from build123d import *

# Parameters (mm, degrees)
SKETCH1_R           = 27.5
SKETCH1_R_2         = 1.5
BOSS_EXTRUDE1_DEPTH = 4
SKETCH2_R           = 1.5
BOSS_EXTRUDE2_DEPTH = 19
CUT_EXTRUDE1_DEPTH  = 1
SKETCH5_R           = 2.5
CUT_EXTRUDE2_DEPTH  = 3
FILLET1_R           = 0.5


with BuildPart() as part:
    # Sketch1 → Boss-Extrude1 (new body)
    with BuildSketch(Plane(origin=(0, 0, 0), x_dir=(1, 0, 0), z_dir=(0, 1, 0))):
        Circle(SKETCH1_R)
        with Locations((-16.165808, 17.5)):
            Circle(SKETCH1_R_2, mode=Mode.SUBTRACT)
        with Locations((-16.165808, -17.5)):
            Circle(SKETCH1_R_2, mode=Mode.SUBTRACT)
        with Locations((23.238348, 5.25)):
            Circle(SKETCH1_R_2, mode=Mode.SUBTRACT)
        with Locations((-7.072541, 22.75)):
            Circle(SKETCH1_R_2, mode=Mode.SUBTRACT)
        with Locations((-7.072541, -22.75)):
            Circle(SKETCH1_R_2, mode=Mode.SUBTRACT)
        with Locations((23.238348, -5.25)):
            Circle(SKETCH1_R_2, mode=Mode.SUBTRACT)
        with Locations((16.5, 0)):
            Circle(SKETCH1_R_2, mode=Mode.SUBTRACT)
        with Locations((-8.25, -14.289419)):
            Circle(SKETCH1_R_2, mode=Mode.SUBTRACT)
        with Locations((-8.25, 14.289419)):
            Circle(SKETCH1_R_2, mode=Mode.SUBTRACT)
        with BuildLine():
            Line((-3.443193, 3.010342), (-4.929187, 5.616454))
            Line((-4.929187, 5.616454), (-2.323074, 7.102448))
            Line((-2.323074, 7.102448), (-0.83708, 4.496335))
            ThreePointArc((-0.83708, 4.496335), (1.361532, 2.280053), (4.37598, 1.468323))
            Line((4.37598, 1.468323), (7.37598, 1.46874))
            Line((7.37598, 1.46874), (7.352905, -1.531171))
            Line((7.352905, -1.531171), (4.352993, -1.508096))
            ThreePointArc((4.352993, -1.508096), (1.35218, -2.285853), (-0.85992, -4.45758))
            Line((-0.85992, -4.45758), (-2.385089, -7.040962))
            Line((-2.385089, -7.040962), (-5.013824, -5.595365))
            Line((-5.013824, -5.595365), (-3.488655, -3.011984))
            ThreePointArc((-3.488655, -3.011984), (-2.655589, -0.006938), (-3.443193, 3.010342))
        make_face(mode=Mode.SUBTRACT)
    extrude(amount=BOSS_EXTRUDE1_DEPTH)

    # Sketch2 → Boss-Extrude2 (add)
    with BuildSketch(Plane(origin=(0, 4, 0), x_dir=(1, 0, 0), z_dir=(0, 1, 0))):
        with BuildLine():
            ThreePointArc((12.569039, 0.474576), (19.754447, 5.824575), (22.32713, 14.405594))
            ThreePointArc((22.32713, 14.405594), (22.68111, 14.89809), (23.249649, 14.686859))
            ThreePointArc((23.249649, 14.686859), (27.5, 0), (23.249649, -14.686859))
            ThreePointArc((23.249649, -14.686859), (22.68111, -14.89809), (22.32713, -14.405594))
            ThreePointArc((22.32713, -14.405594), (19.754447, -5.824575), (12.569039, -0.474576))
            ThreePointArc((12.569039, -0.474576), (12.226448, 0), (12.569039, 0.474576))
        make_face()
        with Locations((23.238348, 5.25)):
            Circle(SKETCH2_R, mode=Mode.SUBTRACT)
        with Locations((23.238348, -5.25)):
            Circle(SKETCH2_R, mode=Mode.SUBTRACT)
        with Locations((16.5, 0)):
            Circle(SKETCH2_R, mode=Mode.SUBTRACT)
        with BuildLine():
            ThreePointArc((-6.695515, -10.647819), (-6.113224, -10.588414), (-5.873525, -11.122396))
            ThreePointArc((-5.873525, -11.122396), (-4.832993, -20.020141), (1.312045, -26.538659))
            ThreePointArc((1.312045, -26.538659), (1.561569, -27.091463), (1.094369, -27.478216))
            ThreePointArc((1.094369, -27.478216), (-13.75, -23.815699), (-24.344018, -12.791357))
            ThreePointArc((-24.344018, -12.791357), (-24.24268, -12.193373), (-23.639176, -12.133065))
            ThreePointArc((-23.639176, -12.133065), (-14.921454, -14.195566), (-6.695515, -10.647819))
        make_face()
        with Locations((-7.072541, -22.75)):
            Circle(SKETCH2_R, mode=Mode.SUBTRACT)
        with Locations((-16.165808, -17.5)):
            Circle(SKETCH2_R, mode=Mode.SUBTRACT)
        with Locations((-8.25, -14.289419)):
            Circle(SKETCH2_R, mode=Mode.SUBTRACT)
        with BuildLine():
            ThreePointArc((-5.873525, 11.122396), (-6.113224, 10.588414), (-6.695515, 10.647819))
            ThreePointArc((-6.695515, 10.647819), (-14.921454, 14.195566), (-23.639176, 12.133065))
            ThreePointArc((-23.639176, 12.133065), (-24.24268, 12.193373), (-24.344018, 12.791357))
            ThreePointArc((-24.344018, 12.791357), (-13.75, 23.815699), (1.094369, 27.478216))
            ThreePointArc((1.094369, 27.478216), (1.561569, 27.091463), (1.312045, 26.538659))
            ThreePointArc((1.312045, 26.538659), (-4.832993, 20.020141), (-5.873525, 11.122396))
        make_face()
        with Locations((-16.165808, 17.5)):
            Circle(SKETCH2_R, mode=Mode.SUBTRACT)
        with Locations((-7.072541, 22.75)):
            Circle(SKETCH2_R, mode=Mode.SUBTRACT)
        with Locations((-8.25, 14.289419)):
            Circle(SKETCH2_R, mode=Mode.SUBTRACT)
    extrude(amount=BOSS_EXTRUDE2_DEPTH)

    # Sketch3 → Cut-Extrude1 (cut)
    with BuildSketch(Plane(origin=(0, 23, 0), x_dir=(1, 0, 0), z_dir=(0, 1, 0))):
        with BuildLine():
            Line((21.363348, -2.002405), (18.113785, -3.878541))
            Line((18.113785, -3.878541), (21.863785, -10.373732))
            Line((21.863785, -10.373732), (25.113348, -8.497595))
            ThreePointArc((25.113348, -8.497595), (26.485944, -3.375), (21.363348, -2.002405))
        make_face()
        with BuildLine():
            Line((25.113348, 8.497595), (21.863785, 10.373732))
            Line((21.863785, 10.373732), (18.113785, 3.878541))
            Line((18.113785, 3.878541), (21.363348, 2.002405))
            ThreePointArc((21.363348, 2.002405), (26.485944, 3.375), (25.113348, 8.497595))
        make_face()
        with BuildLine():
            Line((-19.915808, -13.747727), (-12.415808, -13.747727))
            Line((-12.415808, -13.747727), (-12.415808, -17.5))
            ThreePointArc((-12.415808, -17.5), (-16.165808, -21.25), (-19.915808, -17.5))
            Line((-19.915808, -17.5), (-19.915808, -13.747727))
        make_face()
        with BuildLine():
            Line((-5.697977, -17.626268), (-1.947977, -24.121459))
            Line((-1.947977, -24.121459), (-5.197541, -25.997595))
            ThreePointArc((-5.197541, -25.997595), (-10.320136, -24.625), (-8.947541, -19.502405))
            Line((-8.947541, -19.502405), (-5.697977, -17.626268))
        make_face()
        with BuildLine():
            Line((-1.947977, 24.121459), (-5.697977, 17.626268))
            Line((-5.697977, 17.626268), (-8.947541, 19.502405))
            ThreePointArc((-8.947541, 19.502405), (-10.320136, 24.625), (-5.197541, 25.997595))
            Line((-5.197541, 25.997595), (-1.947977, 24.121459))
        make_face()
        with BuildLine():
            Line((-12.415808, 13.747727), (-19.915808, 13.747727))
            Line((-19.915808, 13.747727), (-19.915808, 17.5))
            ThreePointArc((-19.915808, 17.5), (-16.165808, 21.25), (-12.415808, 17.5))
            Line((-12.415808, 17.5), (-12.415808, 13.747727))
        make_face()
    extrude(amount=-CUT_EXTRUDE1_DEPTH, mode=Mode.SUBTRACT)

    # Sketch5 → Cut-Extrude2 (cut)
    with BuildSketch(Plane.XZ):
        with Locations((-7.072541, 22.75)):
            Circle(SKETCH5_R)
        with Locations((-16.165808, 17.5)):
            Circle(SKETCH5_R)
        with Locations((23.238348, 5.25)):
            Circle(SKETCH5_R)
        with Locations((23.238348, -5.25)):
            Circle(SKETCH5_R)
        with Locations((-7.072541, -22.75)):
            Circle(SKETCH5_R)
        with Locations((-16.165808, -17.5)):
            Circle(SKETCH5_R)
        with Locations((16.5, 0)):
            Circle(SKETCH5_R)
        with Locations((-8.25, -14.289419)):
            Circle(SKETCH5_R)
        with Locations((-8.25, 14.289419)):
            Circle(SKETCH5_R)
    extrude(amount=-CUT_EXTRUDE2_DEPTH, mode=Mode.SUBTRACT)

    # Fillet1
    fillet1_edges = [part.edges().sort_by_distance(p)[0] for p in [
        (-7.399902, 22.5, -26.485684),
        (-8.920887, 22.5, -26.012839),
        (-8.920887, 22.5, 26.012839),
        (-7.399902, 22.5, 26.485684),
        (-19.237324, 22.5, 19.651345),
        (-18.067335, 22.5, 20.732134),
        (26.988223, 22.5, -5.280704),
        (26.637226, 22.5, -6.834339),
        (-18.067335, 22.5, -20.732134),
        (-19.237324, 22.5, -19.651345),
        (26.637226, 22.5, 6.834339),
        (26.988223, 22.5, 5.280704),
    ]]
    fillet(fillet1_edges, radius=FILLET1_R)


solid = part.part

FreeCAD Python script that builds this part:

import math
import FreeCAD as App
import Part
import Sketcher

V = App.Vector
Q = App.Units.Quantity


def edges_at(feature, points):
    """Names of the edges that pass closest to the given points."""
    edges = feature.Shape.Edges
    near = lambda p: min(range(len(edges)), key=lambda i: edges[i].distToShape(Part.Vertex(*p))[0])
    return sorted({f"Edge{near(p) + 1}" for p in points})

doc = App.newDocument("Part")
params = doc.addObject("Spreadsheet::Sheet", "Params")
for row, (alias, value) in enumerate([
    ("sketch1_diameter", "55 mm"),
    ("sketch1_diameter2", "3 mm"),
    ("sketch1_radius", "6.000002 mm"),
    ("sketch1_length", "3 mm"),
    ("pad1_length", "4 mm"),
    ("sketch2_diameter", "3 mm"),
    ("sketch2_radius", "0.5 mm"),
    ("sketch2_radius2", "27.500001 mm"),
    ("sketch2_radius3", "14.25 mm"),
    ("pad2_length", "19 mm"),
    ("sketch3_radius", "3.75 mm"),
    ("pocket1_length", "1 mm"),
    ("sketch4_diameter", "5 mm"),
    ("pocket2_length", "3 mm"),
    ("fillet_radius", "0.5 mm"),
], start=1):
    params.set(f"A{row}", alias)
    params.set(f"B{row}", "=" + value)
    params.setAlias(f"B{row}", alias)

body = doc.addObject("PartDesign::Body", "Body")

# Sketch on XZ plane
sketch1 = body.newObject("Sketcher::SketchObject", "Sketch")
sketch1.AttachmentSupport = (doc.getObject("XZ_Plane"), [""])
sketch1.MapMode = "FlatFace"
sketch1.addGeometry(Part.Circle(V(0, 0, 0), V(0, 0, 1), 27.5), False)
sketch1.addGeometry(Part.Circle(V(-7.072541, 22.75, 0), V(0, 0, 1), 1.5), False)
sketch1.addGeometry(Part.Circle(V(-16.165808, 17.5, 0), V(0, 0, 1), 1.5), False)
sketch1.addGeometry(Part.Circle(V(-8.25, 14.289419, 0), V(0, 0, 1), 1.5), False)
sketch1.addGeometry(Part.Circle(V(23.238348, 5.25, 0), V(0, 0, 1), 1.5), False)
sketch1.addGeometry(Part.ArcOfCircle(Part.Circle(V(-8.65542, -0.038354, 0), V(0, 0, 1), 6.000002), math.radians(-29.691592), math.radians(30.556617)), False)
sketch1.addGeometry(Part.LineSegment(V(-3.443193, -3.010342, 0), V(-4.929187, -5.616454, 0)), False)
sketch1.addGeometry(Part.LineSegment(V(-4.929187, -5.616454, 0), V(-2.323074, -7.102448, 0)), False)
sketch1.addGeometry(Part.LineSegment(V(-2.323074, -7.102448, 0), V(-0.83708, -4.496335, 0)), False)
sketch1.addGeometry(Part.ArcOfCircle(Part.Circle(V(4.375143, -7.468319, 0), V(0, 0, 1), 5.999996), math.radians(89.992003), math.radians(150.308421)), False)
sketch1.addGeometry(Part.LineSegment(V(4.37598, -1.468323, 0), V(7.37598, -1.46874, 0)), False)
sketch1.addGeometry(Part.LineSegment(V(7.37598, -1.46874, 0), V(7.352905, 1.531171, 0)), False)
sketch1.addGeometry(Part.LineSegment(V(7.352905, 1.531171, 0), V(4.352993, 1.508096, 0)), False)
sketch1.addGeometry(Part.ArcOfCircle(Part.Circle(V(4.306843, 7.507919, 0), V(0, 0, 1), 6.000001), math.radians(-149.443365), math.radians(-89.559295)), False)
sketch1.addGeometry(Part.LineSegment(V(-0.85992, 4.45758, 0), V(-2.385089, 7.040962, 0)), False)
sketch1.addGeometry(Part.LineSegment(V(-2.385089, 7.040962, 0), V(-5.013824, 5.595365, 0)), False)
sketch1.addGeometry(Part.LineSegment(V(-5.013824, 5.595365, 0), V(-3.488655, 3.011984, 0)), False)
sketch1.addGeometry(Part.Circle(V(-16.165808, -17.5, 0), V(0, 0, 1), 1.5), False)
sketch1.addGeometry(Part.Circle(V(-8.25, -14.289419, 0), V(0, 0, 1), 1.5), False)
sketch1.addGeometry(Part.Circle(V(-7.072541, -22.75, 0), V(0, 0, 1), 1.5), False)
sketch1.addGeometry(Part.Circle(V(16.5, 0, 0), V(0, 0, 1), 1.5), False)
sketch1.addGeometry(Part.Circle(V(23.238348, -5.25, 0), V(0, 0, 1), 1.5), False)
sketch1.addConstraint(Sketcher.Constraint("Tangent", 5, 1, 6, 1))
sketch1.addConstraint(Sketcher.Constraint("Coincident", 6, 2, 7, 1))
sketch1.addConstraint(Sketcher.Constraint("Coincident", 7, 2, 8, 1))
sketch1.addConstraint(Sketcher.Constraint("Tangent", 8, 2, 9, 2))
sketch1.addConstraint(Sketcher.Constraint("Tangent", 9, 1, 10, 1))
sketch1.addConstraint(Sketcher.Constraint("Coincident", 10, 2, 11, 1))
sketch1.addConstraint(Sketcher.Constraint("Coincident", 11, 2, 12, 1))
sketch1.addConstraint(Sketcher.Constraint("Tangent", 12, 2, 13, 2))
sketch1.addConstraint(Sketcher.Constraint("Tangent", 13, 1, 14, 1))
sketch1.addConstraint(Sketcher.Constraint("Coincident", 14, 2, 15, 1))
sketch1.addConstraint(Sketcher.Constraint("Coincident", 15, 2, 16, 1))
sketch1.addConstraint(Sketcher.Constraint("Tangent", 16, 2, 5, 2))
sketch1.addConstraint(Sketcher.Constraint("Coincident", 0, 3, -1, 1))
sketch1.addConstraint(Sketcher.Constraint("Equal", 1, 2))
sketch1.addConstraint(Sketcher.Constraint("Equal", 2, 3))
sketch1.addConstraint(Sketcher.Constraint("Equal", 3, 4))
sketch1.addConstraint(Sketcher.Constraint("Equal", 5, 13))
sketch1.addConstraint(Sketcher.Constraint("Equal", 4, 17))
sketch1.addConstraint(Sketcher.Constraint("Equal", 17, 18))
sketch1.addConstraint(Sketcher.Constraint("Equal", 18, 19))
sketch1.addConstraint(Sketcher.Constraint("Equal", 19, 20))
sketch1.addConstraint(Sketcher.Constraint("Equal", 20, 21))
sketch1.addConstraint(Sketcher.Constraint("Symmetric", 2, 3, 17, 3, -1))
sketch1.addConstraint(Sketcher.Constraint("Symmetric", 3, 3, 18, 3, -1))
sketch1.addConstraint(Sketcher.Constraint("Symmetric", 1, 3, 19, 3, -1))
sketch1.addConstraint(Sketcher.Constraint("Symmetric", 4, 3, 21, 3, -1))
sketch1.addConstraint(Sketcher.Constraint("PointOnObject", 20, 3, -1))
sketch1.addConstraint(Sketcher.Constraint("Perpendicular", 6, 7))
sketch1.addConstraint(Sketcher.Constraint("Perpendicular", 7, 8))
sketch1.addConstraint(Sketcher.Constraint("Perpendicular", 11, 12))
sketch1.addConstraint(Sketcher.Constraint("Parallel", 14, 16))
sketch1.addConstraint(Sketcher.Constraint("Equal", 6, 7))
sketch1.addConstraint(Sketcher.Constraint("Equal", 7, 8))
sketch1.addConstraint(Sketcher.Constraint("Equal", 8, 10))
sketch1.addConstraint(Sketcher.Constraint("Equal", 10, 11))
sketch1.addConstraint(Sketcher.Constraint("Equal", 11, 12))
sketch1.addConstraint(Sketcher.Constraint("Equal", 12, 14))
sketch1.addConstraint(Sketcher.Constraint("Equal", 14, 15))
sketch1.addConstraint(Sketcher.Constraint("Equal", 15, 16))
sketch1.addConstraint(Sketcher.Constraint("Diameter", 0, Q("55 mm")))
sketch1.addConstraint(Sketcher.Constraint("Diameter", 1, Q("3 mm")))
sketch1.addConstraint(Sketcher.Constraint("Radius", 5, Q("6.000002 mm")))
sketch1.addConstraint(Sketcher.Constraint("Distance", 6, Q("3 mm")))
sketch1.addConstraint(Sketcher.Constraint("DistanceY", -1, 1, 2, 3, Q("17.5 mm")))
sketch1.addConstraint(Sketcher.Constraint("DistanceX", -1, 1, 20, 3, Q("16.5 mm")))
sketch1.addConstraint(Sketcher.Constraint("DistanceY", 4, 3, 1, 3, Q("17.5 mm")))
sketch1.addConstraint(Sketcher.Constraint("DistanceY", 21, 3, 4, 3, Q("10.5 mm")))
sketch1.addConstraint(Sketcher.Constraint("DistanceX", 3, 3, -1, 1, Q("8.25 mm")))
sketch1.addConstraint(Sketcher.Constraint("Radius", 9, Q("5.999996 mm")))
sketch1.addConstraint(Sketcher.Constraint("DistanceY", 13, 3, 3, 3, Q("6.7815 mm")))
sketch1.addConstraint(Sketcher.Constraint("DistanceX", 13, 3, 9, 3, Q("0.0683 mm")))
sketch1.addConstraint(Sketcher.Constraint("DistanceY", 18, 3, 9, 3, Q("6.8211 mm")))
sketch1.addConstraint(Sketcher.Constraint("DistanceY", 6, 2, 5, 3, Q("5.5781 mm")))
sketch1.addConstraint(Sketcher.Constraint("DistanceX", 13, 1, 9, 1, Q("5.2359 mm")))
sketch1.addConstraint(Sketcher.Constraint("DistanceX", 1, 3, -1, 1, Q("7.072541 mm")))
sketch1.addConstraint(Sketcher.Constraint("DistanceX", 5, 3, -1, 1, Q("8.65542 mm")))
sketch1.addConstraint(Sketcher.Constraint("DistanceX", 1, 3, 4, 3, Q("30.310889 mm")))
sketch1.addConstraint(Sketcher.Constraint("DistanceX", 2, 3, 5, 3, Q("7.510388 mm")))
sketch1.setExpression("Constraints[39]", "Params.sketch1_diameter")
sketch1.setExpression("Constraints[40]", "Params.sketch1_diameter2")
sketch1.setExpression("Constraints[41]", "Params.sketch1_radius")
sketch1.setExpression("Constraints[42]", "Params.sketch1_length")
pad1 = body.newObject("PartDesign::Pad", "Pad")
pad1.Profile = sketch1
pad1.setExpression("Length", "Params.pad1_length")
pad1.Reversed = True

# Sketch on XZ plane
sketch2 = body.newObject("Sketcher::SketchObject", "Sketch001")
sketch2.AttachmentSupport = (doc.getObject("XZ_Plane"), [""])
sketch2.MapMode = "FlatFace"
sketch2.AttachmentOffset = App.Placement(V(0, 0, -4), App.Rotation())
sketch2.addGeometry(Part.ArcOfCircle(Part.Circle(V(8.08, -14, 0), V(0, 0, 1), 14.25), math.radians(-2), math.radians(72)), False)
sketch2.addGeometry(Part.ArcOfCircle(Part.Circle(V(12.73, 0, 0), V(0, 0, 1), 0.5), math.radians(108), math.radians(252)), False)
sketch2.addGeometry(Part.ArcOfCircle(Part.Circle(V(8.08, 14, 0), V(0, 0, 1), 14.25), math.radians(-72), math.radians(2)), False)
sketch2.addGeometry(Part.ArcOfCircle(Part.Circle(V(22.83, 14.42, 0), V(0, 0, 1), 0.5), math.radians(32), math.radians(182)), False)
sketch2.addGeometry(Part.ArcOfCircle(Part.Circle(V(0, 0, 0), V(0, 0, 1), 27.5), math.radians(-32), math.radians(32)), False)
sketch2.addGeometry(Part.ArcOfCircle(Part.Circle(V(22.83, -14.42, 0), V(0, 0, 1), 0.5), math.radians(178), math.radians(328)), False)
sketch2.addGeometry(Part.Circle(V(23.24, 5.25, 0), V(0, 0, 1), 1.5), False)
sketch2.addGeometry(Part.Circle(V(23.24, -5.25, 0), V(0, 0, 1), 1.5), False)
sketch2.addGeometry(Part.Circle(V(16.5, 0, 0), V(0, 0, 1), 1.5), False)
sketch2.addGeometry(Part.ArcOfCircle(Part.Circle(V(-6.36, 11.02, 0), V(0, 0, 1), 0.5), math.radians(-132), math.radians(12)), False)
sketch2.addGeometry(Part.ArcOfCircle(Part.Circle(V(-16.17, 0, 0), V(0, 0, 1), 14.25), math.radians(48), math.radians(122)), False)
sketch2.addGeometry(Part.ArcOfCircle(Part.Circle(V(-23.9, 12.56, 0), V(0, 0, 1), 0.5), math.radians(152), math.radians(302)), False)
sketch2.addGeometry(Part.ArcOfCircle(Part.Circle(V(0, 0, 0), V(0, 0, 1), 27.5), math.radians(88), math.radians(152)), False)
sketch2.addGeometry(Part.ArcOfCircle(Part.Circle(V(1.07, 26.98, 0), V(0, 0, 1), 0.5), math.radians(-62), math.radians(88)), False)
sketch2.addGeometry(Part.ArcOfCircle(Part.Circle(V(8.08, 14, 0), V(0, 0, 1), 14.25), math.radians(118), math.radians(192)), False)
sketch2.addGeometry(Part.Circle(V(-7.07, 22.75, 0), V(0, 0, 1), 1.5), False)
sketch2.addGeometry(Part.Circle(V(-8.25, 14.29, 0), V(0, 0, 1), 1.5), False)
sketch2.addGeometry(Part.Circle(V(-16.17, 17.5, 0), V(0, 0, 1), 1.5), False)
sketch2.addGeometry(Part.ArcOfCircle(Part.Circle(V(-6.36, -11.02, 0), V(0, 0, 1), 0.5), math.radians(-12), math.radians(132)), False)
sketch2.addGeometry(Part.ArcOfCircle(Part.Circle(V(8.08, -14, 0), V(0, 0, 1), 14.25), math.radians(168), math.radians(242)), False)
sketch2.addGeometry(Part.ArcOfCircle(Part.Circle(V(1.07, -26.98, 0), V(0, 0, 1), 0.5), math.radians(-88), math.radians(62)), False)
sketch2.addGeometry(Part.ArcOfCircle(Part.Circle(V(0, 0, 0), V(0, 0, 1), 27.5), math.radians(-152), math.radians(-88)), False)
sketch2.addGeometry(Part.ArcOfCircle(Part.Circle(V(-23.9, -12.56, 0), V(0, 0, 1), 0.5), math.radians(58), math.radians(208)), False)
sketch2.addGeometry(Part.ArcOfCircle(Part.Circle(V(-16.17, 0, 0), V(0, 0, 1), 14.25), math.radians(-122), math.radians(-48)), False)
sketch2.addGeometry(Part.Circle(V(-8.25, -14.29, 0), V(0, 0, 1), 1.5), False)
sketch2.addGeometry(Part.Circle(V(-16.17, -17.5, 0), V(0, 0, 1), 1.5), False)
sketch2.addGeometry(Part.Circle(V(-7.07, -22.75, 0), V(0, 0, 1), 1.5), False)
sketch2.addConstraint(Sketcher.Constraint("Tangent", 0, 2, 1, 2))
sketch2.addConstraint(Sketcher.Constraint("Tangent", 1, 1, 2, 1))
sketch2.addConstraint(Sketcher.Constraint("Tangent", 2, 2, 3, 2))
sketch2.addConstraint(Sketcher.Constraint("Tangent", 3, 1, 4, 2))
sketch2.addConstraint(Sketcher.Constraint("Tangent", 4, 1, 5, 2))
sketch2.addConstraint(Sketcher.Constraint("Tangent", 5, 1, 0, 1))
sketch2.addConstraint(Sketcher.Constraint("Tangent", 9, 1, 10, 1))
sketch2.addConstraint(Sketcher.Constraint("Tangent", 10, 2, 11, 2))
sketch2.addConstraint(Sketcher.Constraint("Tangent", 11, 1, 12, 2))
sketch2.addConstraint(Sketcher.Constraint("Tangent", 12, 1, 13, 2))
sketch2.addConstraint(Sketcher.Constraint("Tangent", 13, 1, 14, 1))
sketch2.addConstraint(Sketcher.Constraint("Tangent", 14, 2, 9, 2))
sketch2.addConstraint(Sketcher.Constraint("Tangent", 18, 1, 19, 1))
sketch2.addConstraint(Sketcher.Constraint("Tangent", 19, 2, 20, 2))
sketch2.addConstraint(Sketcher.Constraint("Tangent", 20, 1, 21, 2))
sketch2.addConstraint(Sketcher.Constraint("Tangent", 21, 1, 22, 2))
sketch2.addConstraint(Sketcher.Constraint("Tangent", 22, 1, 23, 1))
sketch2.addConstraint(Sketcher.Constraint("Tangent", 23, 2, 18, 2))
sketch2.addConstraint(Sketcher.Constraint("Coincident", 4, 3, -1, 1))
sketch2.addConstraint(Sketcher.Constraint("Coincident", 12, 3, -1, 1))
sketch2.addConstraint(Sketcher.Constraint("Coincident", 21, 3, -1, 1))
sketch2.addConstraint(Sketcher.Constraint("Coincident", 14, 3, 2, 3))
sketch2.addConstraint(Sketcher.Constraint("Coincident", 19, 3, 0, 3))
sketch2.addConstraint(Sketcher.Constraint("Coincident", 23, 3, 10, 3))
sketch2.addConstraint(Sketcher.Constraint("Equal", 0, 2))
sketch2.addConstraint(Sketcher.Constraint("Equal", 1, 3))
sketch2.addConstraint(Sketcher.Constraint("Equal", 3, 5))
sketch2.addConstraint(Sketcher.Constraint("Equal", 6, 7))
sketch2.addConstraint(Sketcher.Constraint("Equal", 7, 8))
sketch2.addConstraint(Sketcher.Constraint("Equal", 5, 9))
sketch2.addConstraint(Sketcher.Constraint("Equal", 2, 10))
sketch2.addConstraint(Sketcher.Constraint("Equal", 9, 11))
sketch2.addConstraint(Sketcher.Constraint("Equal", 4, 12))
sketch2.addConstraint(Sketcher.Constraint("Equal", 11, 13))
sketch2.addConstraint(Sketcher.Constraint("Equal", 8, 15))
sketch2.addConstraint(Sketcher.Constraint("Equal", 15, 16))
sketch2.addConstraint(Sketcher.Constraint("Equal", 16, 17))
sketch2.addConstraint(Sketcher.Constraint("Equal", 13, 18))
sketch2.addConstraint(Sketcher.Constraint("Equal", 14, 19))
sketch2.addConstraint(Sketcher.Constraint("Equal", 18, 20))
sketch2.addConstraint(Sketcher.Constraint("Equal", 12, 21))
sketch2.addConstraint(Sketcher.Constraint("Equal", 20, 22))
sketch2.addConstraint(Sketcher.Constraint("Equal", 10, 23))
sketch2.addConstraint(Sketcher.Constraint("Equal", 17, 24))
sketch2.addConstraint(Sketcher.Constraint("Equal", 24, 25))
sketch2.addConstraint(Sketcher.Constraint("Equal", 25, 26))
sketch2.addConstraint(Sketcher.Constraint("Symmetric", 0, 3, 2, 3, -1))
sketch2.addConstraint(Sketcher.Constraint("Symmetric", 6, 3, 7, 3, -1))
sketch2.addConstraint(Sketcher.Constraint("Symmetric", 16, 3, 24, 3, -1))
sketch2.addConstraint(Sketcher.Constraint("Symmetric", 17, 3, 25, 3, -1))
sketch2.addConstraint(Sketcher.Constraint("Symmetric", 15, 3, 26, 3, -1))
sketch2.addConstraint(Sketcher.Constraint("PointOnObject", 8, 3, -1))
sketch2.addConstraint(Sketcher.Constraint("Horizontal", 10, 3, 12, 3))
sketch2.addConstraint(Sketcher.Constraint("Vertical", 10, 3, 17, 3))
sketch2.addConstraint(Sketcher.Constraint("Diameter", 6, Q("3 mm")))
sketch2.addConstraint(Sketcher.Constraint("Radius", 1, Q("0.5 mm")))
sketch2.addConstraint(Sketcher.Constraint("Radius", 4, Q("27.500001 mm")))
sketch2.addConstraint(Sketcher.Constraint("Radius", 0, Q("14.25 mm")))
sketch2.addConstraint(Sketcher.Constraint("DistanceY", 0, 3, -1, 1, Q("14 mm")))
sketch2.addConstraint(Sketcher.Constraint("DistanceX", -1, 1, 8, 3, Q("16.5 mm")))
sketch2.addConstraint(Sketcher.Constraint("DistanceY", -1, 1, 17, 3, Q("17.5 mm")))
sketch2.addConstraint(Sketcher.Constraint("DistanceY", 7, 3, 6, 3, Q("10.5 mm")))
sketch2.addConstraint(Sketcher.Constraint("DistanceY", -1, 1, 15, 3, Q("22.75 mm")))
sketch2.addConstraint(Sketcher.Constraint("DistanceX", 16, 3, -1, 1, Q("8.25 mm")))
sketch2.addConstraint(Sketcher.Constraint("Radius", 14, Q("14.250002 mm")))
sketch2.addConstraint(Sketcher.Constraint("DistanceX", 11, 3, -1, 1, Q("23.901399 mm")))
sketch2.addConstraint(Sketcher.Constraint("DistanceX", 1, 3, 6, 3, Q("10.5119 mm")))
sketch2.addConstraint(Sketcher.Constraint("DistanceX", 6, 3, 3, 1, Q("0.011301 mm")))
sketch2.addConstraint(Sketcher.Constraint("DistanceY", 9, 1, 16, 3, Q("3.6416 mm")))
sketch2.addConstraint(Sketcher.Constraint("DistanceX", 15, 3, -1, 1, Q("7.072541 mm")))
sketch2.setExpression("Constraints[54]", "Params.sketch2_diameter")
sketch2.setExpression("Constraints[55]", "Params.sketch2_radius")
sketch2.setExpression("Constraints[56]", "Params.sketch2_radius2")
sketch2.setExpression("Constraints[57]", "Params.sketch2_radius3")
pad2 = body.newObject("PartDesign::Pad", "Pad001")
pad2.Profile = sketch2
pad2.setExpression("Length", "Params.pad2_length")
pad2.Reversed = True

# Sketch on XZ plane
sketch3 = body.newObject("Sketcher::SketchObject", "Sketch002")
sketch3.AttachmentSupport = (doc.getObject("XZ_Plane"), [""])
sketch3.MapMode = "FlatFace"
sketch3.AttachmentOffset = App.Placement(V(0, 0, -23), App.Rotation())
sketch3.addGeometry(Part.LineSegment(V(21.4, 2, 0), V(18.1, 3.9, 0)), False)
sketch3.addGeometry(Part.LineSegment(V(18.1, 3.9, 0), V(21.9, 10.4, 0)), False)
sketch3.addGeometry(Part.LineSegment(V(21.9, 10.4, 0), V(25.1, 8.5, 0)), False)
sketch3.addGeometry(Part.ArcOfCircle(Part.Circle(V(23.2, 5.2, 0), V(0, 0, 1), 3.7), math.radians(-120), math.radians(60)), False)
sketch3.addGeometry(Part.LineSegment(V(25.1, -8.5, 0), V(21.9, -10.4, 0)), False)
sketch3.addGeometry(Part.LineSegment(V(21.9, -10.4, 0), V(18.1, -3.9, 0)), False)
sketch3.addGeometry(Part.LineSegment(V(18.1, -3.9, 0), V(21.4, -2, 0)), False)
sketch3.addGeometry(Part.ArcOfCircle(Part.Circle(V(23.2, -5.2, 0), V(0, 0, 1), 3.7), math.radians(-60), math.radians(120)), False)
sketch3.addGeometry(Part.LineSegment(V(-12.4, 13.7, 0), V(-19.9, 13.7, 0)), False)
sketch3.addGeometry(Part.LineSegment(V(-19.9, 13.7, 0), V(-19.9, 17.5, 0)), False)
sketch3.addGeometry(Part.ArcOfCircle(Part.Circle(V(-16.2, 17.5, 0), V(0, 0, 1), 3.8), math.radians(0), math.radians(180)), False)
sketch3.addGeometry(Part.LineSegment(V(-12.4, 17.5, 0), V(-12.4, 13.7, 0)), False)
sketch3.addGeometry(Part.LineSegment(V(-1.9, 24.1, 0), V(-5.7, 17.6, 0)), False)
sketch3.addGeometry(Part.LineSegment(V(-5.7, 17.6, 0), V(-8.9, 19.5, 0)), False)
sketch3.addGeometry(Part.ArcOfCircle(Part.Circle(V(-7.1, 22.8, 0), V(0, 0, 1), 3.7), math.radians(60), math.radians(240)), False)
sketch3.addGeometry(Part.LineSegment(V(-5.2, 26, 0), V(-1.9, 24.1, 0)), False)
sketch3.addGeometry(Part.LineSegment(V(-5.7, -17.6, 0), V(-1.9, -24.1, 0)), False)
sketch3.addGeometry(Part.LineSegment(V(-1.9, -24.1, 0), V(-5.2, -26, 0)), False)
sketch3.addGeometry(Part.ArcOfCircle(Part.Circle(V(-7.1, -22.8, 0), V(0, 0, 1), 3.7), math.radians(120), math.radians(300)), False)
sketch3.addGeometry(Part.LineSegment(V(-8.9, -19.5, 0), V(-5.7, -17.6, 0)), False)
sketch3.addGeometry(Part.LineSegment(V(-19.9, -13.7, 0), V(-12.4, -13.7, 0)), False)
sketch3.addGeometry(Part.LineSegment(V(-12.4, -13.7, 0), V(-12.4, -17.5, 0)), False)
sketch3.addGeometry(Part.ArcOfCircle(Part.Circle(V(-16.2, -17.5, 0), V(0, 0, 1), 3.8), math.radians(180), math.radians(360)), False)
sketch3.addGeometry(Part.LineSegment(V(-19.9, -17.5, 0), V(-19.9, -13.7, 0)), False)
sketch3.addConstraint(Sketcher.Constraint("Coincident", 0, 2, 1, 1))
sketch3.addConstraint(Sketcher.Constraint("Coincident", 1, 2, 2, 1))
sketch3.addConstraint(Sketcher.Constraint("Tangent", 2, 2, 3, 2))
sketch3.addConstraint(Sketcher.Constraint("Tangent", 3, 1, 0, 1))
sketch3.addConstraint(Sketcher.Constraint("Coincident", 4, 2, 5, 1))
sketch3.addConstraint(Sketcher.Constraint("Coincident", 5, 2, 6, 1))
sketch3.addConstraint(Sketcher.Constraint("Tangent", 6, 2, 7, 2))
sketch3.addConstraint(Sketcher.Constraint("Tangent", 7, 1, 4, 1))
sketch3.addConstraint(Sketcher.Constraint("Coincident", 8, 2, 9, 1))
sketch3.addConstraint(Sketcher.Constraint("Tangent", 9, 2, 10, 2))
sketch3.addConstraint(Sketcher.Constraint("Tangent", 10, 1, 11, 1))
sketch3.addConstraint(Sketcher.Constraint("Coincident", 11, 2, 8, 1))
sketch3.addConstraint(Sketcher.Constraint("Coincident", 12, 2, 13, 1))
sketch3.addConstraint(Sketcher.Constraint("Tangent", 13, 2, 14, 2))
sketch3.addConstraint(Sketcher.Constraint("Tangent", 14, 1, 15, 1))
sketch3.addConstraint(Sketcher.Constraint("Coincident", 15, 2, 12, 1))
sketch3.addConstraint(Sketcher.Constraint("Coincident", 16, 2, 17, 1))
sketch3.addConstraint(Sketcher.Constraint("Tangent", 17, 2, 18, 2))
sketch3.addConstraint(Sketcher.Constraint("Tangent", 18, 1, 19, 1))
sketch3.addConstraint(Sketcher.Constraint("Coincident", 19, 2, 16, 1))
sketch3.addConstraint(Sketcher.Constraint("Coincident", 20, 2, 21, 1))
sketch3.addConstraint(Sketcher.Constraint("Tangent", 21, 2, 22, 2))
sketch3.addConstraint(Sketcher.Constraint("Tangent", 22, 1, 23, 1))
sketch3.addConstraint(Sketcher.Constraint("Coincident", 23, 2, 20, 1))
sketch3.addConstraint(Sketcher.Constraint("Horizontal", 8))
sketch3.addConstraint(Sketcher.Constraint("Vertical", 9))
sketch3.addConstraint(Sketcher.Constraint("Vertical", 11))
sketch3.addConstraint(Sketcher.Constraint("Horizontal", 20))
sketch3.addConstraint(Sketcher.Constraint("Vertical", 21))
sketch3.addConstraint(Sketcher.Constraint("Vertical", 23))
sketch3.addConstraint(Sketcher.Constraint("Equal", 3, 7))
sketch3.addConstraint(Sketcher.Constraint("Equal", 7, 10))
sketch3.addConstraint(Sketcher.Constraint("Equal", 10, 14))
sketch3.addConstraint(Sketcher.Constraint("Equal", 14, 18))
sketch3.addConstraint(Sketcher.Constraint("Equal", 18, 22))
sketch3.addConstraint(Sketcher.Constraint("Symmetric", 3, 3, 7, 3, -1))
sketch3.addConstraint(Sketcher.Constraint("Symmetric", 14, 3, 18, 3, -1))
sketch3.addConstraint(Sketcher.Constraint("Symmetric", 10, 3, 22, 3, -1))
sketch3.addConstraint(Sketcher.Constraint("Symmetric", 1, 2, 4, 2, -1))
sketch3.addConstraint(Sketcher.Constraint("Symmetric", 0, 2, 5, 2, -1))
sketch3.addConstraint(Sketcher.Constraint("Symmetric", 15, 2, 16, 2, -1))
sketch3.addConstraint(Sketcher.Constraint("Symmetric", 12, 2, 19, 2, -1))
sketch3.addConstraint(Sketcher.Constraint("Perpendicular", 0, 1))
sketch3.addConstraint(Sketcher.Constraint("Perpendicular", 1, 2))
sketch3.addConstraint(Sketcher.Constraint("Perpendicular", 2, 12))
sketch3.addConstraint(Sketcher.Constraint("Perpendicular", 12, 13))
sketch3.addConstraint(Sketcher.Constraint("Parallel", 13, 15))
sketch3.addConstraint(Sketcher.Constraint("Equal", 11, 21))
sketch3.addConstraint(Sketcher.Constraint("Equal", 6, 13))
sketch3.addConstraint(Sketcher.Constraint("Angle", 0, Q("150.000001 deg")))
sketch3.addConstraint(Sketcher.Constraint("Radius", 3, Q("3.75 mm")))
sketch3.addConstraint(Sketcher.Constraint("DistanceY", 7, 3, 14, 3, Q("28 mm")))
sketch3.addConstraint(Sketcher.Constraint("DistanceY", 22, 3, 10, 3, Q("35 mm")))
sketch3.addConstraint(Sketcher.Constraint("DistanceY", 7, 3, 3, 3, Q("10.499999 mm")))
sketch3.addConstraint(Sketcher.Constraint("DistanceY", 9, 1, 9, 2, Q("3.752273 mm")))
sketch3.addConstraint(Sketcher.Constraint("DistanceX", -1, 1, 3, 3, Q("23.238349 mm")))
sketch3.addConstraint(Sketcher.Constraint("DistanceX", 14, 3, -1, 1, Q("7.072541 mm")))
sketch3.addConstraint(Sketcher.Constraint("DistanceY", -1, 1, 0, 2, Q("3.878541 mm")))
sketch3.addConstraint(Sketcher.Constraint("DistanceX", 10, 1, 12, 2, Q("6.717831 mm")))
sketch3.setExpression("Constraints[50]", "Params.sketch3_radius")
pocket1 = body.newObject("PartDesign::Pocket", "Pocket")
pocket1.Profile = sketch3
pocket1.setExpression("Length", "Params.pocket1_length")
pocket1.Reversed = True

# Sketch on XZ plane
sketch4 = body.newObject("Sketcher::SketchObject", "Sketch003")
sketch4.AttachmentSupport = (doc.getObject("XZ_Plane"), [""])
sketch4.MapMode = "FlatFace"
sketch4.addGeometry(Part.Circle(V(-7.1, 22.8, 0), V(0, 0, 1), 2.5), False)
sketch4.addGeometry(Part.Circle(V(-16.2, 17.5, 0), V(0, 0, 1), 2.5), False)
sketch4.addGeometry(Part.Circle(V(23.2, 5.2, 0), V(0, 0, 1), 2.5), False)
sketch4.addGeometry(Part.Circle(V(23.2, -5.2, 0), V(0, 0, 1), 2.5), False)
sketch4.addGeometry(Part.Circle(V(-7.1, -22.8, 0), V(0, 0, 1), 2.5), False)
sketch4.addGeometry(Part.Circle(V(-16.2, -17.5, 0), V(0, 0, 1), 2.5), False)
sketch4.addGeometry(Part.Circle(V(16.5, 0, 0), V(0, 0, 1), 2.5), False)
sketch4.addGeometry(Part.Circle(V(-8.2, -14.3, 0), V(0, 0, 1), 2.5), False)
sketch4.addGeometry(Part.Circle(V(-8.2, 14.3, 0), V(0, 0, 1), 2.5), False)
sketch4.addConstraint(Sketcher.Constraint("Equal", 0, 1))
sketch4.addConstraint(Sketcher.Constraint("Equal", 1, 2))
sketch4.addConstraint(Sketcher.Constraint("Equal", 2, 3))
sketch4.addConstraint(Sketcher.Constraint("Equal", 3, 4))
sketch4.addConstraint(Sketcher.Constraint("Equal", 4, 5))
sketch4.addConstraint(Sketcher.Constraint("Equal", 5, 6))
sketch4.addConstraint(Sketcher.Constraint("Equal", 6, 7))
sketch4.addConstraint(Sketcher.Constraint("Equal", 7, 8))
sketch4.addConstraint(Sketcher.Constraint("Symmetric", 2, 3, 3, 3, -1))
sketch4.addConstraint(Sketcher.Constraint("Symmetric", 0, 3, 4, 3, -1))
sketch4.addConstraint(Sketcher.Constraint("Symmetric", 1, 3, 5, 3, -1))
sketch4.addConstraint(Sketcher.Constraint("Symmetric", 7, 3, 8, 3, -1))
sketch4.addConstraint(Sketcher.Constraint("PointOnObject", 6, 3, -1))
sketch4.addConstraint(Sketcher.Constraint("Diameter", 0, Q("5 mm")))
sketch4.addConstraint(Sketcher.Constraint("DistanceY", 3, 3, 0, 3, Q("28 mm")))
sketch4.addConstraint(Sketcher.Constraint("DistanceY", 5, 3, 1, 3, Q("35 mm")))
sketch4.addConstraint(Sketcher.Constraint("DistanceX", -1, 1, 6, 3, Q("16.5 mm")))
sketch4.addConstraint(Sketcher.Constraint("DistanceY", 2, 3, 0, 3, Q("17.5 mm")))
sketch4.addConstraint(Sketcher.Constraint("DistanceX", 7, 3, -1, 1, Q("8.25 mm")))
sketch4.addConstraint(Sketcher.Constraint("DistanceX", 0, 3, -1, 1, Q("7.072541 mm")))
sketch4.addConstraint(Sketcher.Constraint("DistanceY", 7, 3, -1, 1, Q("14.289419 mm")))
sketch4.addConstraint(Sketcher.Constraint("DistanceX", 0, 3, 2, 3, Q("30.310889 mm")))
sketch4.addConstraint(Sketcher.Constraint("DistanceX", 1, 3, -1, 1, Q("16.165808 mm")))
sketch4.setExpression("Constraints[13]", "Params.sketch4_diameter")
pocket2 = body.newObject("PartDesign::Pocket", "Pocket001")
pocket2.Profile = sketch4
pocket2.setExpression("Length", "Params.pocket2_length")
doc.recompute()

fillet = body.newObject("PartDesign::Fillet", "Fillet")
fillet.Base = (pocket2, edges_at(pocket2, [
    (-7.4, 22.5, -26.486),
    (-8.921, 22.5, -26.013),
    (-8.921, 22.5, 26.013),
    (-7.4, 22.5, 26.486),
    (-19.237, 22.5, 19.651),
    (-18.067, 22.5, 20.732),
    (26.988, 22.5, -5.281),
    (26.637, 22.5, -6.834),
    (-18.067, 22.5, -20.732),
    (-19.237, 22.5, -19.651),
    (26.637, 22.5, 6.834),
    (26.988, 22.5, 5.281),
]))
fillet.setExpression("Radius", "Params.fillet_radius")

doc.recompute()
